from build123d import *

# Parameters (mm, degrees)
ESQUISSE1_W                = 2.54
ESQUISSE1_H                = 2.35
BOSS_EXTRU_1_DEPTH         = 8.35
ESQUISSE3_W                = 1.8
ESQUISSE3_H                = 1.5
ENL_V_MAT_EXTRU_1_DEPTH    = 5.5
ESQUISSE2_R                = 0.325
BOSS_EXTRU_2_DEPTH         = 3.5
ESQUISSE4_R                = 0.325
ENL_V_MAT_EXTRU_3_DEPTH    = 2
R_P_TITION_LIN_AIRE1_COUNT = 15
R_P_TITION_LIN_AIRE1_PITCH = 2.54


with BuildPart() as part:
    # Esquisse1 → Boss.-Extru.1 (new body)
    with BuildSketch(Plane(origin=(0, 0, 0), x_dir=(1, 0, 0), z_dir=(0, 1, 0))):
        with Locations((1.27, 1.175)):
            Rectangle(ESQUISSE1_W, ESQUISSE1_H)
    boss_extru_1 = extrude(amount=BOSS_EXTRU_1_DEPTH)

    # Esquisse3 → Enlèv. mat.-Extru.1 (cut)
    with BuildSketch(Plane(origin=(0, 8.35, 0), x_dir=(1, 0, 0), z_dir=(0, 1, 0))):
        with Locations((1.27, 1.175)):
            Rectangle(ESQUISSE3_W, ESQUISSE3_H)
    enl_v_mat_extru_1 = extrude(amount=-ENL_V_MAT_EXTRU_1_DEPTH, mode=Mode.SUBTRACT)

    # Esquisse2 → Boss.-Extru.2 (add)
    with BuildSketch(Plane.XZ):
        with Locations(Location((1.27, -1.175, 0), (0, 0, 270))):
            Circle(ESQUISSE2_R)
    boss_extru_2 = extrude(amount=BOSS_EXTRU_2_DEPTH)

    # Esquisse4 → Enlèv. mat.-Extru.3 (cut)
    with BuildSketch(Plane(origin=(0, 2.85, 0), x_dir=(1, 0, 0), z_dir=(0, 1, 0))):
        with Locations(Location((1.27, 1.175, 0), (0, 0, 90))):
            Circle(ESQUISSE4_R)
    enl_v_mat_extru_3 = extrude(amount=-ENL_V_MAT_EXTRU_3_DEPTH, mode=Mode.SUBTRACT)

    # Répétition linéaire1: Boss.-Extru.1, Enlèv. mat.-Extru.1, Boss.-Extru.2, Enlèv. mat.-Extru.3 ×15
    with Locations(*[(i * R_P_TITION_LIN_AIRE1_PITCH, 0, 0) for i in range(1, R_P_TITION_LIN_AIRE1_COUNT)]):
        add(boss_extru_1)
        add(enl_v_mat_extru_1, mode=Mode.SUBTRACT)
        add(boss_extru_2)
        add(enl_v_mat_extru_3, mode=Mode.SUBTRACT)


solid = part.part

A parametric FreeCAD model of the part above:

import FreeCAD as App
import Part
import Sketcher
from FreeCAD import Vector
Q = App.Units.Quantity


def add_polygon(sketch, points):
    """Adds a closed chain of lines whose ends are joined by coincident constraints."""
    first, n = sketch.GeometryCount, len(points)
    for a, b in zip(points, points[1:] + points[:1]):
        sketch.addGeometry(Part.LineSegment(App.Vector(*a, 0), App.Vector(*b, 0)), False)
    for i in range(n):
        sketch.addConstraint(Sketcher.Constraint("Coincident", first + i, 2, first + (i + 1) % n, 1))

doc = App.newDocument("Part")
body = doc.addObject("PartDesign::Body", "Body")

sketch1 = body.newObject("Sketcher::SketchObject", "Sketch")
sketch1.AttachmentSupport = (doc.getObject("XZ_Plane"), [""])
sketch1.MapMode = "FlatFace"
add_polygon(sketch1, [(0, -2.35), (0, 0), (2.54, 0), (2.54, -2.35)])
sketch1.addConstraint([
    Sketcher.Constraint("Vertical", 0),
    Sketcher.Constraint("Horizontal", 1),
    Sketcher.Constraint("Vertical", 2),
    Sketcher.Constraint("Horizontal", 3),
    Sketcher.Constraint("Coincident", 0, 2, -1, 1),
    Sketcher.Constraint("DistanceX", 1, 1, 1, 2, Q("2.54 mm")),
    Sketcher.Constraint("DistanceY", 0, 1, 0, 2, Q("2.35 mm")),
])
pad1 = body.newObject("PartDesign::Pad", "Pad")
pad1.Profile = sketch1
pad1.Length = 8.35
pad1.Reversed = True

sketch2 = body.newObject("Sketcher::SketchObject", "Sketch001")
sketch2.AttachmentSupport = (doc.getObject("XZ_Plane"), [""])
sketch2.MapMode = "FlatFace"
sketch2.AttachmentOffset = App.Placement(Vector(0, 0, -8.35), App.Rotation())
add_polygon(sketch2, [(0.37, -1.925), (0.37, -0.425), (2.17, -0.425), (2.17, -1.925)])
sketch2.addConstraint([
    Sketcher.Constraint("Vertical", 0),
    Sketcher.Constraint("Horizontal", 1),
    Sketcher.Constraint("Vertical", 2),
    Sketcher.Constraint("Horizontal", 3),
    Sketcher.Constraint("DistanceX", 1, 1, 1, 2, Q("1.8 mm")),
    Sketcher.Constraint("DistanceY", 0, 1, 0, 2, Q("1.5 mm")),
    Sketcher.Constraint("DistanceX", -1, 1, 0, 2, Q("0.37 mm")),
    Sketcher.Constraint("DistanceY", 0, 2, -1, 1, Q("0.425 mm")),
])
pocket1 = body.newObject("PartDesign::Pocket", "Pocket")
pocket1.Profile = sketch2
pocket1.Length = 5.5
pocket1.Reversed = True

sketch3 = body.newObject("Sketcher::SketchObject", "Sketch002")
sketch3.AttachmentSupport = (doc.getObject("XZ_Plane"), [""])
sketch3.MapMode = "FlatFace"
sketch3.addGeometry(Part.Circle(Vector(1.27, -1.175, 0), Vector(0, 0, 1), 0.325), False)
sketch3.addConstraint([
    Sketcher.Constraint("Diameter", 0, Q("0.65 mm")),
    Sketcher.Constraint("DistanceX", -1, 1, 0, 3, Q("1.27 mm")),
    Sketcher.Constraint("DistanceY", 0, 3, -1, 1, Q("1.175 mm")),
])
pad2 = body.newObject("PartDesign::Pad", "Pad001")
pad2.Profile = sketch3
pad2.Length = 3.5

sketch4 = body.newObject("Sketcher::SketchObject", "Sketch003")
sketch4.AttachmentSupport = (doc.getObject("XZ_Plane"), [""])
sketch4.MapMode = "FlatFace"
sketch4.AttachmentOffset = App.Placement(Vector(0, 0, -2.85), App.Rotation())
sketch4.addGeometry(Part.Circle(Vector(1.27, -1.175, 0), Vector(0, 0, 1), 0.325), False)
sketch4.addConstraint([
    Sketcher.Constraint("Diameter", 0, Q("0.65 mm")),
    Sketcher.Constraint("DistanceX", -1, 1, 0, 3, Q("1.27 mm")),
    Sketcher.Constraint("DistanceY", 0, 3, -1, 1, Q("1.175 mm")),
])
pocket2 = body.newObject("PartDesign::Pocket", "Pocket001")
pocket2.Profile = sketch4
pocket2.Length = 2
pocket2.Reversed = True
doc.recompute()

linearpattern = body.newObject("PartDesign::LinearPattern", "LinearPattern")
linearpattern.Originals = [pad1, pocket1, pad2, pocket2]
linearpattern.Direction = (doc.getObject("X_Axis"), [""])
linearpattern.Mode = "offset"
linearpattern.Offset = 2.54
linearpattern.Occurrences = 15
body.Tip = linearpattern

doc.recompute()
